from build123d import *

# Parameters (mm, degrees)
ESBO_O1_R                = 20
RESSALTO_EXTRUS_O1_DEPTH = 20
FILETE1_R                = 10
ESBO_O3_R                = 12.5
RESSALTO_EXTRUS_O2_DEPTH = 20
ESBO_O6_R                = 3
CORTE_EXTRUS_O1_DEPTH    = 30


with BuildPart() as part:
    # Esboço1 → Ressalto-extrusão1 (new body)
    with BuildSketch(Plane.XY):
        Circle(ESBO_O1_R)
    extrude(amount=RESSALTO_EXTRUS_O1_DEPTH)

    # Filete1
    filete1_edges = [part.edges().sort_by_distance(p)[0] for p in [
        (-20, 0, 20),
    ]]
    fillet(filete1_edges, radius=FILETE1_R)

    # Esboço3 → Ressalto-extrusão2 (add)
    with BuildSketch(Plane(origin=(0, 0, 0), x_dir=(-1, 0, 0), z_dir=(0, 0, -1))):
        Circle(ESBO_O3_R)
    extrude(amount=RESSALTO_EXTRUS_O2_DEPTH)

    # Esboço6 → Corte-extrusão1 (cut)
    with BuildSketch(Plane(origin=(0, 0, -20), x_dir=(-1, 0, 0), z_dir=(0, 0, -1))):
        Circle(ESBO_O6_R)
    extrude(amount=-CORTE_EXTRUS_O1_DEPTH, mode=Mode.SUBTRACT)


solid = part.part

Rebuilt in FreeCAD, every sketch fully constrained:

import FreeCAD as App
import Part
import Sketcher

V = App.Vector


def edges_at(feature, points):
    """Names of the edges that pass closest to the given points."""
    edges = feature.Shape.Edges
    near = lambda p: min(range(len(edges)), key=lambda i: edges[i].distToShape(Part.Vertex(*p))[0])
    return sorted({f"Edge{near(p) + 1}" for p in points})

doc = App.newDocument("Part")
body = doc.addObject("PartDesign::Body", "Body")

# Sketch on XY plane
sketch1 = body.newObject("Sketcher::SketchObject", "Sketch")
sketch1.AttachmentSupport = (doc.getObject("XY_Plane"), [""])
sketch1.MapMode = "FlatFace"
sketch1.addGeometry(Part.Circle(V(0, 0, 0), V(0, 0, 1), 20), False)
sketch1.addConstraint([
    Sketcher.Constraint("Coincident", 0, 3, -1, 1),
    Sketcher.Constraint("Diameter", 0, 40.0),
])
pad1 = body.newObject("PartDesign::Pad", "Pad")
pad1.Profile = sketch1
pad1.Length = 20
doc.recompute()

fillet = body.newObject("PartDesign::Fillet", "Fillet")
fillet.Base = (pad1, edges_at(pad1, [(-20, 0, 20)]))
fillet.Radius = 10

# Sketch on XY plane
sketch2 = body.newObject("Sketcher::SketchObject", "Sketch001")
sketch2.AttachmentSupport = (doc.getObject("XY_Plane"), [""])
sketch2.MapMode = "FlatFace"
sketch2.addGeometry(Part.Circle(V(0, 0, 0), V(0, 0, 1), 12.5), False)
sketch2.addConstraint([
    Sketcher.Constraint("Coincident", 0, 3, -1, 1),
    Sketcher.Constraint("Diameter", 0, 25.0),
])
pad2 = body.newObject("PartDesign::Pad", "Pad001")
pad2.Profile = sketch2
pad2.Length = 20
pad2.Reversed = True

# Sketch on XY plane
sketch3 = body.newObject("Sketcher::SketchObject", "Sketch002")
sketch3.AttachmentSupport = (doc.getObject("XY_Plane"), [""])
sketch3.MapMode = "FlatFace"
sketch3.AttachmentOffset = App.Placement(V(0, 0, -20), App.Rotation())
sketch3.addGeometry(Part.Circle(V(0, 0, 0), V(0, 0, 1), 3), False)
sketch3.addConstraint([
    Sketcher.Constraint("Coincident", 0, 3, -1, 1),
    Sketcher.Constraint("Diameter", 0, 6.0),
])
pocket1 = body.newObject("PartDesign::Pocket", "Pocket")
pocket1.Profile = sketch3
pocket1.Length = 30
pocket1.Reversed = True

doc.recompute()
